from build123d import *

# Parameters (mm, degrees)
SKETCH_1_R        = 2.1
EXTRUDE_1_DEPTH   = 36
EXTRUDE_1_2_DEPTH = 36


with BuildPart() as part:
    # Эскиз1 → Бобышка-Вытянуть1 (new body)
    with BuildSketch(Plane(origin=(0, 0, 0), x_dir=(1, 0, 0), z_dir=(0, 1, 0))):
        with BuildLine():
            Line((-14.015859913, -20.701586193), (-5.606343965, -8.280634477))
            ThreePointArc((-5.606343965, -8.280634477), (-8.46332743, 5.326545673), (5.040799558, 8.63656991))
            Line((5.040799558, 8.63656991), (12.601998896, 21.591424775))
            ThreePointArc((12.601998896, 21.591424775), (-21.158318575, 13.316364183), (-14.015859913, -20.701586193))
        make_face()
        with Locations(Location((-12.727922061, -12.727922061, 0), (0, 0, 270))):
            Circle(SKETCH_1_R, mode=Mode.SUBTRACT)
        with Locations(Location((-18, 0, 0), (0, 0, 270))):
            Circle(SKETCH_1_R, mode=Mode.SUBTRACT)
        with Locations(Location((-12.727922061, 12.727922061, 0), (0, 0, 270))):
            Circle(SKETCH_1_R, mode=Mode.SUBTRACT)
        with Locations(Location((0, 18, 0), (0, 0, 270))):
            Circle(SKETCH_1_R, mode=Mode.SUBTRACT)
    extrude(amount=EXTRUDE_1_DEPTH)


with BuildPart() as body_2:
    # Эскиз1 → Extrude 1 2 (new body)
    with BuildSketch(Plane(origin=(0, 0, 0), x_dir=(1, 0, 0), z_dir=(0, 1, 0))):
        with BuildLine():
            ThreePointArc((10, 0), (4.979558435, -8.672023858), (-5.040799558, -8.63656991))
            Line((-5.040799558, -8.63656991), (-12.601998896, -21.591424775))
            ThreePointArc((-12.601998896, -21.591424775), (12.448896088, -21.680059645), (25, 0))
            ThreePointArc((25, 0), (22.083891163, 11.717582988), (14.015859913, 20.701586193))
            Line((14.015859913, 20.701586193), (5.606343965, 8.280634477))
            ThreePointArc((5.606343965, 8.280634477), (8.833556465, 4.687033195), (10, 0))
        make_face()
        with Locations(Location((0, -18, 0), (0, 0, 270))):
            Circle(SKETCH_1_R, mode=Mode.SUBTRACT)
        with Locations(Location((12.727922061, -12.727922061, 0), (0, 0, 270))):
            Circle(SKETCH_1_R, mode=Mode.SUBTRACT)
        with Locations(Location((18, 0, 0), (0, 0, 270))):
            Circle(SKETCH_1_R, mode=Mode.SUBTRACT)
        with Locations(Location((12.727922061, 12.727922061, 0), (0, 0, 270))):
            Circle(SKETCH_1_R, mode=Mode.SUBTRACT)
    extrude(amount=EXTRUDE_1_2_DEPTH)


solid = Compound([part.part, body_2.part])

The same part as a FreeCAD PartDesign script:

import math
import FreeCAD as App
import Part
import Sketcher
from FreeCAD import Vector

doc = App.newDocument("Part")
body = doc.addObject("PartDesign::Body", "Body")

sketch1 = body.newObject("Sketcher::SketchObject", "Sketch")
sketch1.AttachmentSupport = (doc.getObject("XZ_Plane"), [""])
sketch1.MapMode = "FlatFace"
sketch1.addGeometry([
    Part.LineSegment(Vector(-14, 20.7, 0), Vector(-5.6, 8.3, 0)),
    Part.ArcOfCircle(Part.Circle(Vector(0, 0, 0), Vector(0, 0, 1), 10), math.radians(124), math.radians(300)),
    Part.LineSegment(Vector(5, -8.6, 0), Vector(12.6, -21.6, 0)),
    Part.ArcOfCircle(Part.Circle(Vector(0, 0, 0), Vector(0, 0, 1), 25), math.radians(124), math.radians(300)),
    Part.Circle(Vector(-12.7, 12.7, 0), Vector(0, 0, 1), 2.1),
    Part.Circle(Vector(-18, 0, 0), Vector(0, 0, 1), 2.1),
    Part.Circle(Vector(-12.7, -12.7, 0), Vector(0, 0, 1), 2.1),
    Part.Circle(Vector(0, -18, 0), Vector(0, 0, 1), 2.1),
], False)
sketch1.addConstraint([
    Sketcher.Constraint("Coincident", 0, 2, 1, 1),
    Sketcher.Constraint("Coincident", 1, 2, 2, 1),
    Sketcher.Constraint("Coincident", 2, 2, 3, 2),
    Sketcher.Constraint("Coincident", 3, 1, 0, 1),
    Sketcher.Constraint("Coincident", 1, 3, -1, 1),
    Sketcher.Constraint("Coincident", 3, 3, -1, 1),
    Sketcher.Constraint("Equal", 4, 5),
    Sketcher.Constraint("Equal", 5, 6),
    Sketcher.Constraint("Equal", 6, 7),
    Sketcher.Constraint("Symmetric", 4, 3, 6, 3, -1),
    Sketcher.Constraint("PointOnObject", 5, 3, -1),
    Sketcher.Constraint("PointOnObject", 7, 3, -2),
    Sketcher.Constraint("Radius", 1, 10.0),
    Sketcher.Constraint("Radius", 3, 25.0),
    Sketcher.Constraint("Diameter", 4, 4.2),
    Sketcher.Constraint("DistanceX", 5, 3, -1, 1, 18.0),
    Sketcher.Constraint("DistanceY", 7, 3, -1, 1, 18.0),
    Sketcher.Constraint("DistanceX", -1, 1, 2, 2, 12.601999),
    Sketcher.Constraint("DistanceX", -1, 1, 1, 2, 5.0408),
    Sketcher.Constraint("DistanceX", 3, 1, -1, 1, 14.01586),
    Sketcher.Constraint("DistanceX", 4, 3, 0, 2, 7.121578),
    Sketcher.Constraint("DistanceX", 6, 3, 1, 2, 17.768722),
    Sketcher.Constraint("DistanceY", -1, 1, 4, 3, 12.727922),
])
pad1 = body.newObject("PartDesign::Pad", "Pad")
pad1.Profile = sketch1
pad1.Length = 36
pad1.Reversed = True
body2 = doc.addObject("PartDesign::Body", "Body001")

sketch2 = body2.newObject("Sketcher::SketchObject", "Sketch001")
sketch2.AttachmentSupport = (doc.getObject("XZ_Plane001"), [""])
sketch2.MapMode = "FlatFace"
sketch2.addGeometry([
    Part.ArcOfCircle(Part.Circle(Vector(0, 0, 0), Vector(0, 0, 1), 10), math.radians(0), math.radians(120)),
    Part.LineSegment(Vector(-5, 8.6, 0), Vector(-12.6, 21.6, 0)),
    Part.ArcOfCircle(Part.Circle(Vector(0, 0, 0), Vector(0, 0, 1), 25), math.radians(0), math.radians(120)),
    Part.ArcOfCircle(Part.Circle(Vector(0, 0, 0), Vector(0, 0, 1), 25), math.radians(-56), math.radians(0)),
    Part.LineSegment(Vector(14, -20.7, 0), Vector(5.6, -8.3, 0)),
    Part.ArcOfCircle(Part.Circle(Vector(0, 0, 0), Vector(0, 0, 1), 10), math.radians(-56), math.radians(0)),
    Part.Circle(Vector(0, 18, 0), Vector(0, 0, 1), 2.1),
    Part.Circle(Vector(12.7, 12.7, 0), Vector(0, 0, 1), 2.1),
    Part.Circle(Vector(18, 0, 0), Vector(0, 0, 1), 2.1),
    Part.Circle(Vector(12.7, -12.7, 0), Vector(0, 0, 1), 2.1),
], False)
sketch2.addConstraint([
    Sketcher.Constraint("Coincident", 0, 2, 1, 1),
    Sketcher.Constraint("Coincident", 1, 2, 2, 2),
    Sketcher.Constraint("Tangent", 2, 1, 3, 2),
    Sketcher.Constraint("Coincident", 3, 1, 4, 1),
    Sketcher.Constraint("Coincident", 4, 2, 5, 1),
    Sketcher.Constraint("Tangent", 5, 2, 0, 1),
    Sketcher.Constraint("Coincident", 0, 3, -1, 1),
    Sketcher.Constraint("Coincident", 2, 3, -1, 1),
    Sketcher.Constraint("Equal", 2, 3),
    Sketcher.Constraint("Equal", 0, 5),
    Sketcher.Constraint("Equal", 6, 7),
    Sketcher.Constraint("Equal", 7, 8),
    Sketcher.Constraint("Equal", 8, 9),
    Sketcher.Constraint("Symmetric", 7, 3, 9, 3, -1),
    Sketcher.Constraint("PointOnObject", 6, 3, -2),
    Sketcher.Constraint("PointOnObject", 8, 3, -1),
    Sketcher.Constraint("PointOnObject", 2, 1, -1),
    Sketcher.Constraint("PointOnObject", 5, 2, -1),
    Sketcher.Constraint("Radius", 0, 10.0),
    Sketcher.Constraint("Radius", 2, 25.0),
    Sketcher.Constraint("Diameter", 6, 4.2),
    Sketcher.Constraint("DistanceY", -1, 1, 6, 3, 18.0),
    Sketcher.Constraint("DistanceX", -1, 1, 8, 3, 18.0),
    Sketcher.Constraint("DistanceX", 1, 2, -1, 1, 12.601999),
    Sketcher.Constraint("DistanceX", 0, 2, -1, 1, 5.0408),
    Sketcher.Constraint("DistanceX", -1, 1, 3, 1, 14.01586),
    Sketcher.Constraint("DistanceX", 4, 2, 9, 3, 7.121578),
    Sketcher.Constraint("DistanceX", -1, 1, 7, 3, 12.727922),
    Sketcher.Constraint("DistanceY", -1, 1, 7, 3, 12.727922),
])
pad2 = body2.newObject("PartDesign::Pad", "Pad001")
pad2.Profile = sketch2
pad2.Length = 36
pad2.Reversed = True

doc.recompute()
